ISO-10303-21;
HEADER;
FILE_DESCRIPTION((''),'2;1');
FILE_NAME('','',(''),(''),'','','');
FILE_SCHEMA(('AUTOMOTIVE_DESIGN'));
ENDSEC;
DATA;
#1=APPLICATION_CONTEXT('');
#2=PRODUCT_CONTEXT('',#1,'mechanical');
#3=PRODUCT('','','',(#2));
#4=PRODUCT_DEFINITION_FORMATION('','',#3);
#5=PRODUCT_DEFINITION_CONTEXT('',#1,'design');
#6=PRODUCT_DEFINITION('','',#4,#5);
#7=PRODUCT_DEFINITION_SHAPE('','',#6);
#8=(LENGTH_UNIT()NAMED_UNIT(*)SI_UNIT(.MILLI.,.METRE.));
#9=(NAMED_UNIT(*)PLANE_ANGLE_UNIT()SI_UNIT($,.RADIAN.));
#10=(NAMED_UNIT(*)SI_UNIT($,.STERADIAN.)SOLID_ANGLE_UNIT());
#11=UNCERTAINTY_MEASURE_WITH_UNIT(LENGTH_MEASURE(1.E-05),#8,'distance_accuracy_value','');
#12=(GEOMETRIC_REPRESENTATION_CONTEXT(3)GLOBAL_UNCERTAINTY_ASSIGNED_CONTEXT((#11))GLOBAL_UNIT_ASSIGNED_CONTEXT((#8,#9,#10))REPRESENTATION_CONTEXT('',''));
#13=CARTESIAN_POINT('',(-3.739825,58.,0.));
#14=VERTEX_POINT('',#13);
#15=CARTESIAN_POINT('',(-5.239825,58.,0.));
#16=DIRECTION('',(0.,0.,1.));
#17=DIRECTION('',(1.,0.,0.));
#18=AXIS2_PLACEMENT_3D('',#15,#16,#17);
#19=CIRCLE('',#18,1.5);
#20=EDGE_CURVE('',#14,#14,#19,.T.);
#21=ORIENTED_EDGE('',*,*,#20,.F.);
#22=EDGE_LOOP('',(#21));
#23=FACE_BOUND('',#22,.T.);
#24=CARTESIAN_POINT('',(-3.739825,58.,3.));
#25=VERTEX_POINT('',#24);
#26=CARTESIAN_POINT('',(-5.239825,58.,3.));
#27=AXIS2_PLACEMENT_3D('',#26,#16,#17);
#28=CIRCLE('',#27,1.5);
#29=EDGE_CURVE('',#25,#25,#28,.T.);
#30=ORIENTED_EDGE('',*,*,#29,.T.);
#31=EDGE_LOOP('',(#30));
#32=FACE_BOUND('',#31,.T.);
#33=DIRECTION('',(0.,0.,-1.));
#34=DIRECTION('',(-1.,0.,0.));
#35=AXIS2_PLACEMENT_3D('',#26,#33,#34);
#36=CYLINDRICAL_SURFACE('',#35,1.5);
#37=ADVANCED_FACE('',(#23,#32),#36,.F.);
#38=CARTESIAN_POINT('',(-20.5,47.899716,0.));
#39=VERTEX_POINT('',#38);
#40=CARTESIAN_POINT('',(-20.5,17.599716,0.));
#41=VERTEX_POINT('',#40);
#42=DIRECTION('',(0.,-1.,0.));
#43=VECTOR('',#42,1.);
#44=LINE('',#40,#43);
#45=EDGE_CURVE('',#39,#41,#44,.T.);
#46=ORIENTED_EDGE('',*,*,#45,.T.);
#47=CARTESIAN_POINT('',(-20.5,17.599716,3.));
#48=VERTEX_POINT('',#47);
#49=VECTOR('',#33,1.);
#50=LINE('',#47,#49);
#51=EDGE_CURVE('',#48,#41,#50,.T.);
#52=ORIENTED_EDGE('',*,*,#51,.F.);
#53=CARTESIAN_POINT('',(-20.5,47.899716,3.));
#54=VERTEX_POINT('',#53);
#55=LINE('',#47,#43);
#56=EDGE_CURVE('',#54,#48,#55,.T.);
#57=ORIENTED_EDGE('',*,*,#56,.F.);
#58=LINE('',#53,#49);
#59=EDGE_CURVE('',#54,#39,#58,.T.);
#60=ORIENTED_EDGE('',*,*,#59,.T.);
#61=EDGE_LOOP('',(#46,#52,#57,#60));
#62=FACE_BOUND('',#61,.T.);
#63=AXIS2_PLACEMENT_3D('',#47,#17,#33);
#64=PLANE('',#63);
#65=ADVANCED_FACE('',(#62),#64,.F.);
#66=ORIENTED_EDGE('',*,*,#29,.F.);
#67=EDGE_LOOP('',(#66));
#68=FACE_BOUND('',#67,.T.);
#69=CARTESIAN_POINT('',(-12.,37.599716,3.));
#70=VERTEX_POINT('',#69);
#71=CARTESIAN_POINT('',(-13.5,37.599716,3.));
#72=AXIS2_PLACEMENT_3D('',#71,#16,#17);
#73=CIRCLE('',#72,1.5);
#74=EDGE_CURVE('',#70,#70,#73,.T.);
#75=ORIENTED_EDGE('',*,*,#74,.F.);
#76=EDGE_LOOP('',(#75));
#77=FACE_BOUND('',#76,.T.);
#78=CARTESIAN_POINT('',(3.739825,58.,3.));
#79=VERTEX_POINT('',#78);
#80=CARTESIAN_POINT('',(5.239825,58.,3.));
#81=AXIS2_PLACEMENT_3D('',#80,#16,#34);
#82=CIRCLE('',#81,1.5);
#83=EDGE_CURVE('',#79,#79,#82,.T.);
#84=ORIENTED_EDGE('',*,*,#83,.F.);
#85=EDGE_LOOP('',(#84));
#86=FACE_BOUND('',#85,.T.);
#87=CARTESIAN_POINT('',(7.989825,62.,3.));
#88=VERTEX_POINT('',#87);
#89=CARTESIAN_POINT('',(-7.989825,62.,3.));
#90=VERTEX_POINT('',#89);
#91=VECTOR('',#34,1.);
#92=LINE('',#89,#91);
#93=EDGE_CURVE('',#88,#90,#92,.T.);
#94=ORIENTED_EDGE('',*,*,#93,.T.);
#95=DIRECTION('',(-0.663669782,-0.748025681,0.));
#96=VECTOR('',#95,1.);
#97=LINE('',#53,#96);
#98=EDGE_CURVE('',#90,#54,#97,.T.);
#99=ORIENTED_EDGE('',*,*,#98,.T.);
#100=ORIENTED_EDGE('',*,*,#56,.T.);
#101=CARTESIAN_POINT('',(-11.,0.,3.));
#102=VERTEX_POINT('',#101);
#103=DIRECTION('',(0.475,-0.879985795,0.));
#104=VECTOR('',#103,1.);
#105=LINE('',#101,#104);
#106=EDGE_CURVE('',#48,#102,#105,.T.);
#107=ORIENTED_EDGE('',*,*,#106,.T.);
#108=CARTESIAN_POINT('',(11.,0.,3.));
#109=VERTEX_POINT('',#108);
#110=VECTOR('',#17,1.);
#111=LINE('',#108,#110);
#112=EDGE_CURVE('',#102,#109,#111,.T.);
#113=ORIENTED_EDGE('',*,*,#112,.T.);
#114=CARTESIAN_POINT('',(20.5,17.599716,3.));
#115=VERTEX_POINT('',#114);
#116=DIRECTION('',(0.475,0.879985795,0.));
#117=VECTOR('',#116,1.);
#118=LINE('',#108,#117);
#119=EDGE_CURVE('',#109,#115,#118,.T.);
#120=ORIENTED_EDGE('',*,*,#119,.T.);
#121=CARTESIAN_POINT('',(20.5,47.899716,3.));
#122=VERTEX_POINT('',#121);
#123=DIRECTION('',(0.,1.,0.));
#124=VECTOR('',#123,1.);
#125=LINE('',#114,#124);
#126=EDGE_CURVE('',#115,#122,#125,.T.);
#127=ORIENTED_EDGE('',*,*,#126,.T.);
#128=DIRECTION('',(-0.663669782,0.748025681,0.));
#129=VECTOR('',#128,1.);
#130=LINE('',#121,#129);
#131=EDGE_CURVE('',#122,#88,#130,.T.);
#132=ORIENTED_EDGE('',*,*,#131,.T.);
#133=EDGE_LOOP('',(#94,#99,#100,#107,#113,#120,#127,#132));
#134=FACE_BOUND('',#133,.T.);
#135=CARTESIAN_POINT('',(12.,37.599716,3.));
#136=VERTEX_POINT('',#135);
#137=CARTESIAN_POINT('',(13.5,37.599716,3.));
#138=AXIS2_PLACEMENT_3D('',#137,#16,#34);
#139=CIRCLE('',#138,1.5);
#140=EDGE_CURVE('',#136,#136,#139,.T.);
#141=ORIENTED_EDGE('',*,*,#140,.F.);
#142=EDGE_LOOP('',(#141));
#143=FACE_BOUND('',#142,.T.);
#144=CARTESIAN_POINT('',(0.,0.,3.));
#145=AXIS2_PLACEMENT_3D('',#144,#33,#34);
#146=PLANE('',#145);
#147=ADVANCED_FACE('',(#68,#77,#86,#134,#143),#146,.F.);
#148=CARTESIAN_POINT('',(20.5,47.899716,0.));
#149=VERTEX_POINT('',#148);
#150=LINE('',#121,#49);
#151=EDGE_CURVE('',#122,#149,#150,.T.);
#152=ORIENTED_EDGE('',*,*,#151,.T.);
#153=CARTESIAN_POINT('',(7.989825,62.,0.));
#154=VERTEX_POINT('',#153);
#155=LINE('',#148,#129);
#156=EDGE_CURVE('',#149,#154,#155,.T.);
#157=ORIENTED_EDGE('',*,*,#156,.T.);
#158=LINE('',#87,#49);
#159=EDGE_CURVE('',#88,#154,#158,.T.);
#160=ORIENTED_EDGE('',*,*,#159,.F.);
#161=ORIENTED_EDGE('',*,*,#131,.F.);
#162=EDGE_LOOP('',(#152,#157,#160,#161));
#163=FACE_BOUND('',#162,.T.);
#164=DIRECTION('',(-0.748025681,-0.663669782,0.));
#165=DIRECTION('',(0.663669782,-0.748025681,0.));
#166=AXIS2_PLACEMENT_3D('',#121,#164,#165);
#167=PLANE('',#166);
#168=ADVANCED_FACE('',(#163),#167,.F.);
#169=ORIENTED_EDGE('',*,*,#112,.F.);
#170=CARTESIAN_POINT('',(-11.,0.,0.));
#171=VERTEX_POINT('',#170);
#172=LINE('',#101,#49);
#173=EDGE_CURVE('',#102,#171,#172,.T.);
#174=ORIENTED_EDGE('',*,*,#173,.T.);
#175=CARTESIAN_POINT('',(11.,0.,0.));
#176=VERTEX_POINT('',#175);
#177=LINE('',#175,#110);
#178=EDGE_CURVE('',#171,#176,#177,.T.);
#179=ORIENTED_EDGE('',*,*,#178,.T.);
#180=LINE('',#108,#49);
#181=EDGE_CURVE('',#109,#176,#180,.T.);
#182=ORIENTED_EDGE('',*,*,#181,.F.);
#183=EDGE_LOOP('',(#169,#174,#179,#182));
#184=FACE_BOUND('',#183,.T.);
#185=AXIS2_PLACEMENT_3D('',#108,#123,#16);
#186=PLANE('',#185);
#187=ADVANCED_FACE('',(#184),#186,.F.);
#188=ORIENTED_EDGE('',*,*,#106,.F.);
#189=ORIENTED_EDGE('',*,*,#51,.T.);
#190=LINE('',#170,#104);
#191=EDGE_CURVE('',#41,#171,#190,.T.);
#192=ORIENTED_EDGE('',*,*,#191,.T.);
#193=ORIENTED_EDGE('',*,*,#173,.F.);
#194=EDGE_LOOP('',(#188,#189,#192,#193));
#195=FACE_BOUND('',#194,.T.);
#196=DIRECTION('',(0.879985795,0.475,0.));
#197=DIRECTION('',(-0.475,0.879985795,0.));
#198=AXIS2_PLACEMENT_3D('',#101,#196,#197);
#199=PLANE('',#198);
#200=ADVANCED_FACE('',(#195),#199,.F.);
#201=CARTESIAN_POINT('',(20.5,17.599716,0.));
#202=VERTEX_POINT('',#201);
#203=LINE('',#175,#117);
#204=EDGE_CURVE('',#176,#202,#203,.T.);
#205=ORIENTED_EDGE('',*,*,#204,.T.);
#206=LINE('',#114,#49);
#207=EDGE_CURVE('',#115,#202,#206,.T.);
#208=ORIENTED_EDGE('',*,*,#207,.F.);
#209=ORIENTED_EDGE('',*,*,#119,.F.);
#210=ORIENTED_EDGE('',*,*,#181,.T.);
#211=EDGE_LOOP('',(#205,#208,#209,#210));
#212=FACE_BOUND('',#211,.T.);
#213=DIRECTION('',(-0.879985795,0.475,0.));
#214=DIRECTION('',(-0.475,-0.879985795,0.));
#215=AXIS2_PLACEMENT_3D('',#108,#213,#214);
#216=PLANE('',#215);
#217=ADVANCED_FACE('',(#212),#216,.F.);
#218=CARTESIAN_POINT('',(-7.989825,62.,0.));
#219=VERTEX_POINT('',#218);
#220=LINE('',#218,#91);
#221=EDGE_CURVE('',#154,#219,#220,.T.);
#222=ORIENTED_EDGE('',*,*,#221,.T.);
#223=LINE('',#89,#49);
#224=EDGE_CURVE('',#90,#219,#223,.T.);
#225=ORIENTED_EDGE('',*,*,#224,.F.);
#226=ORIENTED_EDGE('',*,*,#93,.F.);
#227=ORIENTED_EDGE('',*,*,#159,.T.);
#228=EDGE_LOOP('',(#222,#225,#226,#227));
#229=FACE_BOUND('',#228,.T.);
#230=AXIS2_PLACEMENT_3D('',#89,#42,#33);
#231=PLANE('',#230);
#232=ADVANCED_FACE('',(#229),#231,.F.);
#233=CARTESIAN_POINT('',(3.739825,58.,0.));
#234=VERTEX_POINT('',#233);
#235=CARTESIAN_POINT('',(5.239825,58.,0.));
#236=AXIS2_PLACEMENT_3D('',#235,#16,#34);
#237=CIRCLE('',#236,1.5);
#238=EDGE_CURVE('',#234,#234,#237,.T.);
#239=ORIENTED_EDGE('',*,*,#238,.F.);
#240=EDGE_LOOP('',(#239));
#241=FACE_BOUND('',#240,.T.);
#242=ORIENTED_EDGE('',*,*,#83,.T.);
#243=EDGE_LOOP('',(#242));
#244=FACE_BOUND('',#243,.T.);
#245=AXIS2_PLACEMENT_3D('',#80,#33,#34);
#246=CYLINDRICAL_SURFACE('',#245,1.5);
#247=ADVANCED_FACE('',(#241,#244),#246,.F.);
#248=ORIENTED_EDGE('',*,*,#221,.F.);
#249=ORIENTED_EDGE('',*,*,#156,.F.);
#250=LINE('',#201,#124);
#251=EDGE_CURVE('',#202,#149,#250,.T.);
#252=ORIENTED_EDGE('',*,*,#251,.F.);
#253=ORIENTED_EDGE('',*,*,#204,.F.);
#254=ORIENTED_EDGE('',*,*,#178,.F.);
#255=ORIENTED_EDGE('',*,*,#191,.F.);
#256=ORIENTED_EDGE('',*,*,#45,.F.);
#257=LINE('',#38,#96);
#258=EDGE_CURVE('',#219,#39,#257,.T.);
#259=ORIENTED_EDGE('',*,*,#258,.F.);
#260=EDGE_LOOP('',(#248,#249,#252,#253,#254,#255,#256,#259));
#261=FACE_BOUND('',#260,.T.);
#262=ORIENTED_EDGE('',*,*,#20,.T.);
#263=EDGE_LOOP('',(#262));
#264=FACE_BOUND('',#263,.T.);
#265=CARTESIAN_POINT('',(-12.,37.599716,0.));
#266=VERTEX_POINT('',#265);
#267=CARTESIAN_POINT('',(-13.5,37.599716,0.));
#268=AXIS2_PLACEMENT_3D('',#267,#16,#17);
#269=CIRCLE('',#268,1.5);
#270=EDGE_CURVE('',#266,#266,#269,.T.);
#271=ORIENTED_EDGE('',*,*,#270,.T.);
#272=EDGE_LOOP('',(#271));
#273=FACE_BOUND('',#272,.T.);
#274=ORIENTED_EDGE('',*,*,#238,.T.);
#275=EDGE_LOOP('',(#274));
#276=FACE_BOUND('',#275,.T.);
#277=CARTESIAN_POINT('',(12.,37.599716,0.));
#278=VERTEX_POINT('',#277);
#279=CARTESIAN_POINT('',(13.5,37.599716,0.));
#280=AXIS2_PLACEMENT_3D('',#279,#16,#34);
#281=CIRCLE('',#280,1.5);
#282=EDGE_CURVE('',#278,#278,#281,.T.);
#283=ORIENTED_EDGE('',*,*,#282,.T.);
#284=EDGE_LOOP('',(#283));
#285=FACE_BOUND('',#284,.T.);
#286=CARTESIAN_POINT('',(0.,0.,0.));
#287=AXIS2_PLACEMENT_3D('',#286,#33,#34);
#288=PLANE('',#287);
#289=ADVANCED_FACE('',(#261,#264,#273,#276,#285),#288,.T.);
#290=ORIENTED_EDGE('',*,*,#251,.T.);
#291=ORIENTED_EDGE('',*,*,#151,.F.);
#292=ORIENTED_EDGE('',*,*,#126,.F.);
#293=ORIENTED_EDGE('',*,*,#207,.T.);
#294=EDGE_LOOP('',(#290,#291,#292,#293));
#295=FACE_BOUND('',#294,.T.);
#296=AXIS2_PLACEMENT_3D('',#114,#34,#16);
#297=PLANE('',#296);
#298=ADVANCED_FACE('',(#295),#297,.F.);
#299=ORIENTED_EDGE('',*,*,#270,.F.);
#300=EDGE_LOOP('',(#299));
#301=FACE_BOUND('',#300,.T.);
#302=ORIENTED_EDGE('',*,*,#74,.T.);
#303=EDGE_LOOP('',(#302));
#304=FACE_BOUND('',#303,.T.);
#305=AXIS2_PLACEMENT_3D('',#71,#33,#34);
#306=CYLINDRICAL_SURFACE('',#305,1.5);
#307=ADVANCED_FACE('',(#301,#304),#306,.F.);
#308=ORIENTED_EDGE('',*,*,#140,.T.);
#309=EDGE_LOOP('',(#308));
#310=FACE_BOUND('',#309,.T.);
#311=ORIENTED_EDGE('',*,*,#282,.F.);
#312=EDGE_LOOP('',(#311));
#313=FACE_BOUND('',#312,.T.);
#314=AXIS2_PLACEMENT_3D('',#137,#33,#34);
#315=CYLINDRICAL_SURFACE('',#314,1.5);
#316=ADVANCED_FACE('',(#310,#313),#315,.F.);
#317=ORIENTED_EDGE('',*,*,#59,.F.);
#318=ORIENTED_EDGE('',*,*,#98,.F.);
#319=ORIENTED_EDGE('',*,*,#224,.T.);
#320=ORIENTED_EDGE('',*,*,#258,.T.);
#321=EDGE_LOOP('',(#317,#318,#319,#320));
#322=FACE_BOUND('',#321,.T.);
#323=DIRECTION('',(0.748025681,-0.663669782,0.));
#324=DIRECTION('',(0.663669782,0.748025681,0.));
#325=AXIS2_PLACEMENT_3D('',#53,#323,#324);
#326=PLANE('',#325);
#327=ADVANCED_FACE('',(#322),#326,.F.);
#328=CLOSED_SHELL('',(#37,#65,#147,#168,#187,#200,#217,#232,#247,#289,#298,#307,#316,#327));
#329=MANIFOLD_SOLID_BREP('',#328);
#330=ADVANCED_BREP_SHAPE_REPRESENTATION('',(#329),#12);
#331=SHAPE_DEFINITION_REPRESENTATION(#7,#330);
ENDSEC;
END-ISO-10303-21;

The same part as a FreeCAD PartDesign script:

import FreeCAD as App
import Part
import Sketcher

V = App.Vector


def add_polygon(sketch, points):
    """Adds a closed chain of lines whose ends are joined by coincident constraints."""
    first, n = sketch.GeometryCount, len(points)
    for a, b in zip(points, points[1:] + points[:1]):
        sketch.addGeometry(Part.LineSegment(App.Vector(*a, 0), App.Vector(*b, 0)), False)
    for i in range(n):
        sketch.addConstraint(Sketcher.Constraint("Coincident", first + i, 2, first + (i + 1) % n, 1))

doc = App.newDocument("Part")
body = doc.addObject("PartDesign::Body", "Body")

# Sketch on XY plane
sketch1 = doc.addObject("Sketcher::SketchObject", "Sketch")
body.addObject(sketch1)
sketch1.AttachmentSupport = (doc.XY_Plane, [""])
sketch1.MapMode = "FlatFace"
add_polygon(sketch1, [(-11, 0), (11, 0), (20.5, 17.6), (20.5, 47.9), (8, 62), (-8, 62), (-20.5, 47.9), (-20.5, 17.6)])  # lines 0-7
sketch1.addGeometry(Part.Circle(V(13.5, 37.6, 0), V(0, 0, 1), 1.5), False)  # 8
sketch1.addGeometry(Part.Circle(V(-13.5, 37.6, 0), V(0, 0, 1), 1.5), False)  # 9
sketch1.addGeometry(Part.Circle(V(5.2, 58, 0), V(0, 0, 1), 1.5), False)  # 10
sketch1.addGeometry(Part.Circle(V(-5.2, 58, 0), V(0, 0, 1), 1.5), False)  # 11
sketch1.addConstraint([
    Sketcher.Constraint("Horizontal", 0),
    Sketcher.Constraint("Vertical", 2),
    Sketcher.Constraint("Horizontal", 4),
    Sketcher.Constraint("Vertical", 6),
    Sketcher.Constraint("Equal", 8, 9),
    Sketcher.Constraint("Equal", 9, 10),
    Sketcher.Constraint("Equal", 10, 11),
    Sketcher.Constraint("Symmetric", 0, 2, 7, 2, -1, 1),
    Sketcher.Constraint("Symmetric", 8, 3, 9, 3, -2),
    Sketcher.Constraint("Symmetric", 10, 3, 11, 3, -2),
    Sketcher.Constraint("Symmetric", 2, 2, 5, 2, -2),
    Sketcher.Constraint("Horizontal", 1, 2, 6, 2),
    Sketcher.Constraint("Equal", 3, 5),
    Sketcher.Constraint("Diameter", 8, 3.0),
    Sketcher.Constraint("DistanceX", 0, 1, 0, 2, 22.0),
    Sketcher.Constraint("Distance", 1, 20.0),
    Sketcher.Constraint("DistanceY", 2, 1, 2, 2, 30.3),
    Sketcher.Constraint("DistanceY", -1, 1, 10, 3, 58.0),
    Sketcher.Constraint("DistanceY", -1, 1, 3, 2, 62.0),
    Sketcher.Constraint("DistanceX", 9, 3, 8, 3, 27.0),
    Sketcher.Constraint("DistanceX", 8, 3, 1, 2, 7.0),
    Sketcher.Constraint("DistanceY", 1, 2, 8, 3, 20.0),
    Sketcher.Constraint("Distance", 3, 18.85),
    Sketcher.Constraint("DistanceX", 10, 3, 3, 2, 2.75),
])
pad1 = doc.addObject("PartDesign::Pad", "Pad")
body.addObject(pad1)
pad1.Profile = sketch1
pad1.Length = 3

doc.recompute()
